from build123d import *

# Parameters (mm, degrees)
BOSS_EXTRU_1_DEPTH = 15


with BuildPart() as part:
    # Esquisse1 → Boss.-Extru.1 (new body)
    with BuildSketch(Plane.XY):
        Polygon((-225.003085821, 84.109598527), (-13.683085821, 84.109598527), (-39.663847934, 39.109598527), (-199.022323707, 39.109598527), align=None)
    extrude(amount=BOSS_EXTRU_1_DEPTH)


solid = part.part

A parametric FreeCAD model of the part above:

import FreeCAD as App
import Part
import Sketcher
from FreeCAD import Vector
Q = App.Units.Quantity

doc = App.newDocument("Part")
body = doc.addObject("PartDesign::Body", "Body")

# Sketch on XY plane
sketch1 = body.newObject("Sketcher::SketchObject", "Sketch")
sketch1.AttachmentSupport = (doc.getObject("XY_Plane"), [""])
sketch1.MapMode = "FlatFace"
sketch1.addGeometry(Part.LineSegment(Vector(-14, 84, 0), Vector(-225, 84, 0)), False)
sketch1.addGeometry(Part.LineSegment(Vector(-225, 84, 0), Vector(-199, 39, 0)), False)
sketch1.addGeometry(Part.LineSegment(Vector(-199, 39, 0), Vector(-40, 39, 0)), False)
sketch1.addGeometry(Part.LineSegment(Vector(-40, 39, 0), Vector(-14, 84, 0)), False)
sketch1.addConstraint(Sketcher.Constraint("Coincident", 0, 2, 1, 1))
sketch1.addConstraint(Sketcher.Constraint("Coincident", 1, 2, 2, 1))
sketch1.addConstraint(Sketcher.Constraint("Coincident", 2, 2, 3, 1))
sketch1.addConstraint(Sketcher.Constraint("Coincident", 3, 2, 0, 1))
sketch1.addConstraint(Sketcher.Constraint("Horizontal", 0))
sketch1.addConstraint(Sketcher.Constraint("Horizontal", 2))
sketch1.addConstraint(Sketcher.Constraint("Equal", 1, 3))
sketch1.addConstraint(Sketcher.Constraint("Angle", 1, Q("-60 deg")))
sketch1.addConstraint(Sketcher.Constraint("DistanceY", 1, 2, 0, 2, 45.0))
sketch1.addConstraint(Sketcher.Constraint("DistanceX", 0, 2, 0, 1, 211.32))
sketch1.addConstraint(Sketcher.Constraint("DistanceY", -1, 1, 0, 2, 84.109599))
sketch1.addConstraint(Sketcher.Constraint("DistanceX", 0, 2, -1, 1, 225.003086))
pad1 = body.newObject("PartDesign::Pad", "Pad")
pad1.Profile = sketch1
pad1.Length = 15

doc.recompute()
